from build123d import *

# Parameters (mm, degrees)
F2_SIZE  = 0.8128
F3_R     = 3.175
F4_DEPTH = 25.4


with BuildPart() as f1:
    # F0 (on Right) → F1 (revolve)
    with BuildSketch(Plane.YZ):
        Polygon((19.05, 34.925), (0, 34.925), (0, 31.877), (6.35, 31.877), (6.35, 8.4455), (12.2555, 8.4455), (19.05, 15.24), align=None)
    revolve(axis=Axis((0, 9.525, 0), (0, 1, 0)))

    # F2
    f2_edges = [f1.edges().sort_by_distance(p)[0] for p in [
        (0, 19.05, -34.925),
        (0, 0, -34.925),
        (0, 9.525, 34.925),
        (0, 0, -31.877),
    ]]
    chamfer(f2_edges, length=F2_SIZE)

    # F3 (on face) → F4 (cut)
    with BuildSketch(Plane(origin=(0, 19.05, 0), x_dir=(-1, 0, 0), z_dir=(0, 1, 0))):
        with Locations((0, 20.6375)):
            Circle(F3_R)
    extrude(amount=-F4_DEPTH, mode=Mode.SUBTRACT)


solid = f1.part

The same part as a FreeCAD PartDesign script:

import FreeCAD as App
import Part
import Sketcher

V = App.Vector
Q = App.Units.Quantity


def edges_at(feature, points):
    """Names of the edges that pass closest to the given points."""
    edges = feature.Shape.Edges
    near = lambda p: min(range(len(edges)), key=lambda i: edges[i].distToShape(Part.Vertex(*p))[0])
    return sorted({f"Edge{near(p) + 1}" for p in points})

doc = App.newDocument("Part")
body = doc.addObject("PartDesign::Body", "Body")

# Sketch on YZ plane
sketch1 = body.newObject("Sketcher::SketchObject", "Sketch")
sketch1.AttachmentSupport = (doc.getObject("YZ_Plane"), [""])
sketch1.MapMode = "FlatFace"
sketch1.addGeometry(Part.LineSegment(V(19.1, 34.9, 0), V(0, 34.9, 0)), False)
sketch1.addGeometry(Part.LineSegment(V(0, 34.9, 0), V(0, 31.9, 0)), False)
sketch1.addGeometry(Part.LineSegment(V(0, 31.9, 0), V(6.3, 31.9, 0)), False)
sketch1.addGeometry(Part.LineSegment(V(6.3, 31.9, 0), V(6.3, 8.4, 0)), False)
sketch1.addGeometry(Part.LineSegment(V(6.3, 8.4, 0), V(12.3, 8.4, 0)), False)
sketch1.addGeometry(Part.LineSegment(V(12.3, 8.4, 0), V(19.1, 15.2, 0)), False)
sketch1.addGeometry(Part.LineSegment(V(19.1, 15.2, 0), V(19.1, 34.9, 0)), False)
sketch1.addConstraint(Sketcher.Constraint("Coincident", 0, 2, 1, 1))
sketch1.addConstraint(Sketcher.Constraint("Coincident", 1, 2, 2, 1))
sketch1.addConstraint(Sketcher.Constraint("Coincident", 2, 2, 3, 1))
sketch1.addConstraint(Sketcher.Constraint("Coincident", 3, 2, 4, 1))
sketch1.addConstraint(Sketcher.Constraint("Coincident", 4, 2, 5, 1))
sketch1.addConstraint(Sketcher.Constraint("Coincident", 5, 2, 6, 1))
sketch1.addConstraint(Sketcher.Constraint("Coincident", 6, 2, 0, 1))
sketch1.addConstraint(Sketcher.Constraint("Horizontal", 0))
sketch1.addConstraint(Sketcher.Constraint("Vertical", 1))
sketch1.addConstraint(Sketcher.Constraint("Horizontal", 2))
sketch1.addConstraint(Sketcher.Constraint("Vertical", 3))
sketch1.addConstraint(Sketcher.Constraint("Horizontal", 4))
sketch1.addConstraint(Sketcher.Constraint("Vertical", 6))
sketch1.addConstraint(Sketcher.Constraint("PointOnObject", 0, 2, -2))
sketch1.addConstraint(Sketcher.Constraint("Angle", 5, Q("45 deg")))
sketch1.addConstraint(Sketcher.Constraint("DistanceX", 0, 2, 0, 1, Q("0.75 in")))
sketch1.addConstraint(Sketcher.Constraint("DistanceX", 2, 1, 2, 2, Q("0.25 in")))
sketch1.addConstraint(Sketcher.Constraint("DistanceY", 1, 2, 1, 1, Q("0.12 in")))
sketch1.addConstraint(Sketcher.Constraint("DistanceY", -1, 1, 5, 2, Q("0.6 in")))
sketch1.addConstraint(Sketcher.Constraint("DistanceY", 6, 1, 6, 2, Q("0.775 in")))
sketch1.addConstraint(Sketcher.Constraint("DistanceX", 4, 1, 4, 2, Q("0.2325 in")))
revolution = body.newObject("PartDesign::Revolution", "Revolution")
revolution.Profile = sketch1
revolution.ReferenceAxis = (sketch1, ["H_Axis"])
revolution.Angle = 360
doc.recompute()

chamfer = body.newObject("PartDesign::Chamfer", "Chamfer")
chamfer.Base = (revolution, edges_at(revolution, [
    (0, 19.05, -34.925),
    (0, 0, -34.925),
    (0, 9.525, 34.925),
    (0, 0, -31.877),
]))
chamfer.Size = Q("0.032 in")

# Sketch on XZ plane
sketch2 = body.newObject("Sketcher::SketchObject", "Sketch001")
sketch2.AttachmentSupport = (doc.getObject("XZ_Plane"), [""])
sketch2.MapMode = "FlatFace"
sketch2.AttachmentOffset = App.Placement(V(0, 0, -0.75 * 25.4), App.Rotation())
sketch2.addGeometry(Part.Circle(V(0, 20.6, 0), V(0, 0, 1), 3.2), False)
sketch2.addConstraint(Sketcher.Constraint("PointOnObject", 0, 3, -2))
sketch2.addConstraint(Sketcher.Constraint("Diameter", 0, Q("0.25 in")))
sketch2.addConstraint(Sketcher.Constraint("DistanceY", -1, 1, 0, 3, Q("0.8125 in")))
pocket1 = body.newObject("PartDesign::Pocket", "Pocket")
pocket1.Profile = sketch2
pocket1.Length = Q("1 in")
pocket1.Reversed = True

doc.recompute()
